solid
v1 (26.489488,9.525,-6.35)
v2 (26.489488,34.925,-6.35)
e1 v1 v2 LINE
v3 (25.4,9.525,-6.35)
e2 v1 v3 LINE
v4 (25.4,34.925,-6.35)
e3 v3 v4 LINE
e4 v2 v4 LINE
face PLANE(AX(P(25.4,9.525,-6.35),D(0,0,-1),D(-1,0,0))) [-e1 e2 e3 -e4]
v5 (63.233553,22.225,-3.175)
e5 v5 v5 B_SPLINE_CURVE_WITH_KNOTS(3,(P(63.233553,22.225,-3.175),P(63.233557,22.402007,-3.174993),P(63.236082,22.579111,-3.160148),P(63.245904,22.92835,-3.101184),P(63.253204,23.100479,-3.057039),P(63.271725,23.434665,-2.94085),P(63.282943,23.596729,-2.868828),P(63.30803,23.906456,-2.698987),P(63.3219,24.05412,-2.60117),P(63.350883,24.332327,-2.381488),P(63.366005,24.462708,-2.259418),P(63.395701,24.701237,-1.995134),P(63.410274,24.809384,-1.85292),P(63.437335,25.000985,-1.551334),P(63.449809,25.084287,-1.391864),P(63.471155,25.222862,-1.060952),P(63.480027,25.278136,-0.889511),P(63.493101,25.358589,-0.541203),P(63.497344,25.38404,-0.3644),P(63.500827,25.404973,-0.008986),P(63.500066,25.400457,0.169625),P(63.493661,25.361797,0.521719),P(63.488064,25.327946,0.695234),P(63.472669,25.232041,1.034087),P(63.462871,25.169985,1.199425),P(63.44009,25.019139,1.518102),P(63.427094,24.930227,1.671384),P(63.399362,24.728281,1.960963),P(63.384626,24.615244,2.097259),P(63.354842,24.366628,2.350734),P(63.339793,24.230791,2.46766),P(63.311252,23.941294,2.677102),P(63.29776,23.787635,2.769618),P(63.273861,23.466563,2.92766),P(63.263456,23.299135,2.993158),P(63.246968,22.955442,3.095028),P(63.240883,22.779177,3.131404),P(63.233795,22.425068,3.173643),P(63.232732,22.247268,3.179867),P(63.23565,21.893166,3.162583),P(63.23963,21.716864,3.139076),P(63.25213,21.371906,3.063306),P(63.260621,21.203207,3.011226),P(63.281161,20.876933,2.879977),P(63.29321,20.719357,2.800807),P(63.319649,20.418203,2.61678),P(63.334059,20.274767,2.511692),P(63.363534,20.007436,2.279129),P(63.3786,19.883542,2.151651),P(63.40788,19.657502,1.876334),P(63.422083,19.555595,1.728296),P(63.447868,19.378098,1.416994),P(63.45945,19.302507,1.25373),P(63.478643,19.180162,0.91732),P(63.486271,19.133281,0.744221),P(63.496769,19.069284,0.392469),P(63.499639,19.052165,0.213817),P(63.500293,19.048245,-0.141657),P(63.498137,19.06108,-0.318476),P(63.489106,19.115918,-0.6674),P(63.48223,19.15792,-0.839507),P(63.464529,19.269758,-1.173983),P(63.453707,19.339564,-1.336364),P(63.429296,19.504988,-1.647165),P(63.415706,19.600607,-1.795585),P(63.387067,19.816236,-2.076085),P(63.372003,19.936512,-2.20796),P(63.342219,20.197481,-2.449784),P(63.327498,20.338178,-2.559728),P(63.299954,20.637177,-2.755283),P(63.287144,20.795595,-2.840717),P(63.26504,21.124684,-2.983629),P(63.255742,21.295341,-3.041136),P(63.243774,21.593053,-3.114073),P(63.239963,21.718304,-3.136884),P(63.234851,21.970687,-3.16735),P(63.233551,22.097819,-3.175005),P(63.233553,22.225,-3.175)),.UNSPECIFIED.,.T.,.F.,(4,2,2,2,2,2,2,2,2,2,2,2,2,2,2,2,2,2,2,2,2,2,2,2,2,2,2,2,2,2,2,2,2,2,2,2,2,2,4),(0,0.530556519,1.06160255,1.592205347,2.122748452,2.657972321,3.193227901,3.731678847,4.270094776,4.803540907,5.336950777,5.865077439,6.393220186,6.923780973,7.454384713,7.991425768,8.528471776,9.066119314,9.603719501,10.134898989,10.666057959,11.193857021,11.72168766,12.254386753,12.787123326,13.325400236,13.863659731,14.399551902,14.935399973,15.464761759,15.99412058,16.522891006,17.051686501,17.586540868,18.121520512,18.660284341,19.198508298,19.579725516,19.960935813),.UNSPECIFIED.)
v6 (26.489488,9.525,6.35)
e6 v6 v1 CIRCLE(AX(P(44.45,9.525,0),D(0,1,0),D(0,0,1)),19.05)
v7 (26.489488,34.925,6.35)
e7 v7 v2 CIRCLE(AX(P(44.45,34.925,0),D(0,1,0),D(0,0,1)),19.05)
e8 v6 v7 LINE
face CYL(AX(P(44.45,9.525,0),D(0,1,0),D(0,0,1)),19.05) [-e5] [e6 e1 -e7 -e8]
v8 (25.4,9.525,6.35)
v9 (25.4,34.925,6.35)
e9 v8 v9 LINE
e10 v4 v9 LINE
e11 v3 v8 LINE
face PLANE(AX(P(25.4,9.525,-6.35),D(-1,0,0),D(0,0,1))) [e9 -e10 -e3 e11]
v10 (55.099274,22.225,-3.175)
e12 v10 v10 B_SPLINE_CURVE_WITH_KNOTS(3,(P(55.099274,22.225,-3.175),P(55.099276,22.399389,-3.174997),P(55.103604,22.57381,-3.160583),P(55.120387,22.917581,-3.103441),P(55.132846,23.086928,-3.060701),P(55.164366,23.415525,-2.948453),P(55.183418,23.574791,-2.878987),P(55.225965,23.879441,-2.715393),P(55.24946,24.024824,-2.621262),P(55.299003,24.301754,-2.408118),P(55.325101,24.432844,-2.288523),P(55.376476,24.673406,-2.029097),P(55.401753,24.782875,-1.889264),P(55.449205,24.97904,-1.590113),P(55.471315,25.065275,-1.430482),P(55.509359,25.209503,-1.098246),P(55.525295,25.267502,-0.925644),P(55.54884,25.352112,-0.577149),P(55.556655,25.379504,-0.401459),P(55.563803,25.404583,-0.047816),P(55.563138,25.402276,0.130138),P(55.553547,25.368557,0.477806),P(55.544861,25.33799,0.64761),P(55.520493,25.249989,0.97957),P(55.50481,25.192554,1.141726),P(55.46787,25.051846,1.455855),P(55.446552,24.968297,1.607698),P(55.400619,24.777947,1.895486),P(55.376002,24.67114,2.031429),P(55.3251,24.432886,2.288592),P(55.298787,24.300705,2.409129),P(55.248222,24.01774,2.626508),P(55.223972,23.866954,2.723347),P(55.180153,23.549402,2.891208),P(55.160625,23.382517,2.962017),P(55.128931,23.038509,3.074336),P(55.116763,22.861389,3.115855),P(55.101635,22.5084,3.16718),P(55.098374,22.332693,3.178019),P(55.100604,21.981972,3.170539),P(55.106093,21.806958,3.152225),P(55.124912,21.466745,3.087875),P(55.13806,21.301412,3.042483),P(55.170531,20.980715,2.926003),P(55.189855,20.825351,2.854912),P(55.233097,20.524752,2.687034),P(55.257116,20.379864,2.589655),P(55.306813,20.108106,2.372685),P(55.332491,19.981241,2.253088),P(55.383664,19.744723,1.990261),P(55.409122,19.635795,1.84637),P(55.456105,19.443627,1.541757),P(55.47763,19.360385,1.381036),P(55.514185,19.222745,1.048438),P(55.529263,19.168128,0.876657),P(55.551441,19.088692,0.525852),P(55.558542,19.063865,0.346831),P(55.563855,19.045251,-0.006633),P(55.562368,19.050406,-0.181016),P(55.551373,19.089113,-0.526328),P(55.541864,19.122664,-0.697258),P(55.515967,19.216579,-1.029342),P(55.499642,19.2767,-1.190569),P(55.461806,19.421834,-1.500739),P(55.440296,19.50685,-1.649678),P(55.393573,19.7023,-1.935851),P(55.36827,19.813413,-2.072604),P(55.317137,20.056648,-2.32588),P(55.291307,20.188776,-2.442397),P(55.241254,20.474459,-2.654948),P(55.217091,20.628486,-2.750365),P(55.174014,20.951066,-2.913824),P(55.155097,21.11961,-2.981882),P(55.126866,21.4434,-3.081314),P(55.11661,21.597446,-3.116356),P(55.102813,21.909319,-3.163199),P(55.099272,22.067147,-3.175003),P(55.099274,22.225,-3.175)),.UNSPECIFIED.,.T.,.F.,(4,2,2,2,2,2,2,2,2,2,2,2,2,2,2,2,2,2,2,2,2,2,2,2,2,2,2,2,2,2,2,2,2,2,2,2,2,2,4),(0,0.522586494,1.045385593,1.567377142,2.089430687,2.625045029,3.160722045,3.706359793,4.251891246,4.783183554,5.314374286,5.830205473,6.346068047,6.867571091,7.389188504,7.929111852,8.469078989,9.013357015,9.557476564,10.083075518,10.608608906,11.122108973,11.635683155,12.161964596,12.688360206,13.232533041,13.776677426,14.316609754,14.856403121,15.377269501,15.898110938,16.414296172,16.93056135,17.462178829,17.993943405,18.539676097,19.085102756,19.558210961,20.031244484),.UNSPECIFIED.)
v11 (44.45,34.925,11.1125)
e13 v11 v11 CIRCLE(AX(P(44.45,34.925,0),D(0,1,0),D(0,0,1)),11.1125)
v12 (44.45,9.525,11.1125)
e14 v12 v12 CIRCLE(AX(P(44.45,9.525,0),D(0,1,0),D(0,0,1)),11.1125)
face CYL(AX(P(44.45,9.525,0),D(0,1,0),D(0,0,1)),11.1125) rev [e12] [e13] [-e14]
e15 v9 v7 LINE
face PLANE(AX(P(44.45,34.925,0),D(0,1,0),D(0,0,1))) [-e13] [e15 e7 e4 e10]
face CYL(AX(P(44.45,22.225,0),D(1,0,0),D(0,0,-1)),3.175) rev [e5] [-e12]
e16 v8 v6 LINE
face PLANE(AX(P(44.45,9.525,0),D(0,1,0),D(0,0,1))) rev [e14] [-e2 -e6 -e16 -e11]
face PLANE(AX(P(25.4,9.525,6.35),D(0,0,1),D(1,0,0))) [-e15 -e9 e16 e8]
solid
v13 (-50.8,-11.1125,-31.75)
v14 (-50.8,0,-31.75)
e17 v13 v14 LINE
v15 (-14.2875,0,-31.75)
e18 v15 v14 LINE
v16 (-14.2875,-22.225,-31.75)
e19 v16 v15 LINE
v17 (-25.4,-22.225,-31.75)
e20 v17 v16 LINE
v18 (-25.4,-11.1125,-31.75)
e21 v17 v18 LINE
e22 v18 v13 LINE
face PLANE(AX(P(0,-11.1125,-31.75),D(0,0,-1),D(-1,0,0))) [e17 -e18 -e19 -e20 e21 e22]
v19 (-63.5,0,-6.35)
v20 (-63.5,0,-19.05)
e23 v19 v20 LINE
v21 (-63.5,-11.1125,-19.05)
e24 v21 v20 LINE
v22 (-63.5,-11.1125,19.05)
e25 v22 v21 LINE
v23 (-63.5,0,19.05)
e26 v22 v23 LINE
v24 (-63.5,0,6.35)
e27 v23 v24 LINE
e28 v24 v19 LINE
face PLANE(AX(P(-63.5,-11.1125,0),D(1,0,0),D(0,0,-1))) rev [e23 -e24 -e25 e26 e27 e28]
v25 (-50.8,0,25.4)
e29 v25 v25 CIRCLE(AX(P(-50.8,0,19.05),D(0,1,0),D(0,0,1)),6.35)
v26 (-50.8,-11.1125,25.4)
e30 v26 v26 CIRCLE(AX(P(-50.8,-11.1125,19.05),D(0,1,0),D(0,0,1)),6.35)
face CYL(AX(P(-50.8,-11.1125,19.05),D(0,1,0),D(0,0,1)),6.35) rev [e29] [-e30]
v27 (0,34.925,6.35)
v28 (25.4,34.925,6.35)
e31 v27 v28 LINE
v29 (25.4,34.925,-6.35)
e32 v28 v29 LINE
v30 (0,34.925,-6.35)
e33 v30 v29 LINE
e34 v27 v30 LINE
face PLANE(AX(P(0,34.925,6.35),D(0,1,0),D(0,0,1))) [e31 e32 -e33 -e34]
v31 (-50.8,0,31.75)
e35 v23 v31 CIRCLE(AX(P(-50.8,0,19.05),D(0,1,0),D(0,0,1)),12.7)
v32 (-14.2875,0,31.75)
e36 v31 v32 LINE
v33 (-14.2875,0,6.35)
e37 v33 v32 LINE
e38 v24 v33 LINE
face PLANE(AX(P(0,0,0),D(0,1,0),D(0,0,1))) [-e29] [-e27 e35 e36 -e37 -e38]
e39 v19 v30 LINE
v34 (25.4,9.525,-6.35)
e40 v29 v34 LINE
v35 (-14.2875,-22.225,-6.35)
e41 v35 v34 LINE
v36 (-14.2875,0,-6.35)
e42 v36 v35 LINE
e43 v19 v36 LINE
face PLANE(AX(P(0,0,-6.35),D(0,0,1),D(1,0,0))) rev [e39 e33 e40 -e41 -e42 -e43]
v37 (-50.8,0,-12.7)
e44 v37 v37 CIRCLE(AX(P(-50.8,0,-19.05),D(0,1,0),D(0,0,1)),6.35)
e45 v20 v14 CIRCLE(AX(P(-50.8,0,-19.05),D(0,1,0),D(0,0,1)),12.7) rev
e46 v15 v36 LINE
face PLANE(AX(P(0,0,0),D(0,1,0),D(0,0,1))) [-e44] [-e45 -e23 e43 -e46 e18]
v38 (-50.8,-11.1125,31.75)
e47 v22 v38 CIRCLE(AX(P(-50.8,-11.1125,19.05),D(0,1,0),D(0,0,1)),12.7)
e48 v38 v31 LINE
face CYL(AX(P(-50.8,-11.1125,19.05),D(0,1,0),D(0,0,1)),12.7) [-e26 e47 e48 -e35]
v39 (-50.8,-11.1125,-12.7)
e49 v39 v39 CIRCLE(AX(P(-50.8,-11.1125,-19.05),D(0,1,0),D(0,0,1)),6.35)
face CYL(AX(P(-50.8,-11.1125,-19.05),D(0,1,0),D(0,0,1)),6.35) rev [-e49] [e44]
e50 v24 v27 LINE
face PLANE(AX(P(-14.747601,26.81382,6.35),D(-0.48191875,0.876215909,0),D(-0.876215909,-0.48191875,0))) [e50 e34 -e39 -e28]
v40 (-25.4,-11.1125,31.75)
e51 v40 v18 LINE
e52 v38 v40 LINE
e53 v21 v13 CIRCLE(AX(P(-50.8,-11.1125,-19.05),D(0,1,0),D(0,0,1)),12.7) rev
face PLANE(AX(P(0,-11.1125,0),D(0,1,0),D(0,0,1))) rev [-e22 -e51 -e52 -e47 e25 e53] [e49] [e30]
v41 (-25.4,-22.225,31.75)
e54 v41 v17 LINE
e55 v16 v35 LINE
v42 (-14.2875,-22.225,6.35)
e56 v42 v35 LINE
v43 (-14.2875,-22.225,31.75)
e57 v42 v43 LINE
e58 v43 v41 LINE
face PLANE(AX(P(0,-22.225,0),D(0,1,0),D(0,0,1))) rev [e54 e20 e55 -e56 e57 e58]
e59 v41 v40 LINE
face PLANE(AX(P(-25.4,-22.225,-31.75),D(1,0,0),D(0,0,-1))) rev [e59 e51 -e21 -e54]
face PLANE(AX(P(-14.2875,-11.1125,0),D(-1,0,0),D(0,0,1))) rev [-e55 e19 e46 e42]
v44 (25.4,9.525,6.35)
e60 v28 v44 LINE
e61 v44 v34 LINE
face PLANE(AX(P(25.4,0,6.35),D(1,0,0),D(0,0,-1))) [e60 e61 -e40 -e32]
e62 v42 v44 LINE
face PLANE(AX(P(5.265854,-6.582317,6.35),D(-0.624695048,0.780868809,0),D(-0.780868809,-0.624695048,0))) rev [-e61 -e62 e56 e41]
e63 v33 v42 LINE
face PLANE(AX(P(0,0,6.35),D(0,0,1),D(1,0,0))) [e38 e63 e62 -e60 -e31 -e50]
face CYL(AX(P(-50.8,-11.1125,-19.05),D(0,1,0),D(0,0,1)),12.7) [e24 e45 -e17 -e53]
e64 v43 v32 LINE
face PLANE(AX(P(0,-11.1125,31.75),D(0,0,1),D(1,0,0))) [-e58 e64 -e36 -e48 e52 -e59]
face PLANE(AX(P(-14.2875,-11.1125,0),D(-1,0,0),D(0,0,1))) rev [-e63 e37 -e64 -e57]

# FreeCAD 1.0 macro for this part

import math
import FreeCAD as App
import Part
import Sketcher
Q = App.Units.Quantity


def add_polygon(sketch, points):
    """Adds a closed chain of lines whose ends are joined by coincident constraints."""
    first, n = sketch.GeometryCount, len(points)
    for a, b in zip(points, points[1:] + points[:1]):
        sketch.addGeometry(Part.LineSegment(App.Vector(*a, 0), App.Vector(*b, 0)), False)
    for i in range(n):
        sketch.addConstraint(Sketcher.Constraint("Coincident", first + i, 2, first + (i + 1) % n, 1))

doc = App.newDocument("Part")
body = doc.addObject("PartDesign::Body", "Body")

sketch1 = doc.addObject("Sketcher::SketchObject", "Sketch")
body.addObject(sketch1)
sketch1.AttachmentSupport = (doc.XZ_Plane, [""])
sketch1.MapMode = "FlatFace"
sketch1.addGeometry(Part.LineSegment(App.Vector(-63.5, -19.05, 0), App.Vector(-63.5, 19.05, 0)), False)
sketch1.addGeometry(Part.ArcOfCircle(Part.Circle(App.Vector(-50.8, 19.05, 0), App.Vector(0, 0, 1), 12.7), math.radians(90), math.radians(180)), False)
sketch1.addGeometry(Part.LineSegment(App.Vector(-50.8, 31.75, 0), App.Vector(-14.2875, 31.75, 0)), False)
sketch1.addGeometry(Part.LineSegment(App.Vector(-14.2875, 31.75, 0), App.Vector(-14.2875, -31.75, 0)), False)
sketch1.addGeometry(Part.LineSegment(App.Vector(-14.2875, -31.75, 0), App.Vector(-50.8, -31.75, 0)), False)
sketch1.addGeometry(Part.ArcOfCircle(Part.Circle(App.Vector(-50.8, -19.05, 0), App.Vector(0, 0, 1), 12.7), math.radians(180), math.radians(270)), False)
sketch1.addGeometry(Part.Circle(App.Vector(-50.8, 19.05, 0), App.Vector(0, 0, 1), 6.35), False)
sketch1.addGeometry(Part.Circle(App.Vector(-50.8, -19.05, 0), App.Vector(0, 0, 1), 6.35), False)
sketch1.addConstraint(Sketcher.Constraint("Tangent", 0, 2, 1, 2))
sketch1.addConstraint(Sketcher.Constraint("Tangent", 1, 1, 2, 1))
sketch1.addConstraint(Sketcher.Constraint("Coincident", 2, 2, 3, 1))
sketch1.addConstraint(Sketcher.Constraint("Coincident", 3, 2, 4, 1))
sketch1.addConstraint(Sketcher.Constraint("Tangent", 4, 2, 5, 2))
sketch1.addConstraint(Sketcher.Constraint("Tangent", 5, 1, 0, 1))
sketch1.addConstraint(Sketcher.Constraint("Vertical", 0))
sketch1.addConstraint(Sketcher.Constraint("Horizontal", 2))
sketch1.addConstraint(Sketcher.Constraint("Vertical", 3))
sketch1.addConstraint(Sketcher.Constraint("Horizontal", 4))
sketch1.addConstraint(Sketcher.Constraint("Coincident", 6, 3, 1, 3))
sketch1.addConstraint(Sketcher.Constraint("Coincident", 7, 3, 5, 3))
sketch1.addConstraint(Sketcher.Constraint("Equal", 1, 5))
sketch1.addConstraint(Sketcher.Constraint("Equal", 6, 7))
sketch1.addConstraint(Sketcher.Constraint("Diameter", 6, Q("0.5 in")))
sketch1.addConstraint(Sketcher.Constraint("Radius", 1, Q("0.5 in")))
sketch1.addConstraint(Sketcher.Constraint("DistanceY", 0, 1, 0, 2, Q("1.5 in")))
sketch1.addConstraint(Sketcher.Constraint("DistanceX", 1, 3, -1, 1, Q("2 in")))
sketch1.addConstraint(Sketcher.Constraint("DistanceX", 2, 1, 2, 2, Q("1.4375 in")))
sketch1.addConstraint(Sketcher.Constraint("DistanceY", -1, 1, 1, 3, Q("0.75 in")))
pad1 = doc.addObject("PartDesign::Pad", "Pad")
body.addObject(pad1)
pad1.Profile = sketch1
pad1.Length = Q("0.4375 in")

sketch2 = doc.addObject("Sketcher::SketchObject", "Sketch001")
body.addObject(sketch2)
sketch2.AttachmentSupport = (doc.XZ_Plane, [""])
sketch2.MapMode = "FlatFace"
sketch2.AttachmentOffset = App.Placement(App.Vector(0, 0, 0.4375 * 25.4), App.Rotation())
add_polygon(sketch2, [(-25.4, 31.75), (-25.4, -31.75), (-14.2875, -31.75), (-14.2875, 31.75)])
sketch2.addConstraint(Sketcher.Constraint("Vertical", 0))
sketch2.addConstraint(Sketcher.Constraint("Horizontal", 1))
sketch2.addConstraint(Sketcher.Constraint("Vertical", 2))
sketch2.addConstraint(Sketcher.Constraint("Horizontal", 3))
sketch2.addConstraint(Sketcher.Constraint("DistanceY", 0, 2, 0, 1, Q("2.5 in")))
sketch2.addConstraint(Sketcher.Constraint("DistanceX", 0, 2, -1, 1, Q("1 in")))
sketch2.addConstraint(Sketcher.Constraint("DistanceX", 1, 1, 1, 2, Q("0.4375 in")))
sketch2.addConstraint(Sketcher.Constraint("DistanceY", 0, 2, -1, 1, Q("1.25 in")))
pad2 = doc.addObject("PartDesign::Pad", "Pad001")
body.addObject(pad2)
pad2.Profile = sketch2
pad2.Length = Q("0.4375 in")

sketch3 = doc.addObject("Sketcher::SketchObject", "Sketch002")
body.addObject(sketch3)
sketch3.AttachmentSupport = (doc.XY_Plane, [""])
sketch3.MapMode = "FlatFace"
add_polygon(sketch3, [(-63.5, 0), (-14.2875, 0), (-14.2875, -22.225), (25.4, 9.525), (25.4, 34.925), (0, 34.925)])
sketch3.addConstraint(Sketcher.Constraint("Horizontal", 0))
sketch3.addConstraint(Sketcher.Constraint("Vertical", 1))
sketch3.addConstraint(Sketcher.Constraint("Vertical", 3))
sketch3.addConstraint(Sketcher.Constraint("Horizontal", 4))
sketch3.addConstraint(Sketcher.Constraint("PointOnObject", 0, 2, -1))
sketch3.addConstraint(Sketcher.Constraint("PointOnObject", 4, 2, -2))
sketch3.addConstraint(Sketcher.Constraint("Equal", 4, 3))
sketch3.addConstraint(Sketcher.Constraint("DistanceX", 4, 2, 4, 1, Q("1 in")))
sketch3.addConstraint(Sketcher.Constraint("DistanceX", 5, 2, -1, 1, Q("2.5 in")))
sketch3.addConstraint(Sketcher.Constraint("DistanceX", 0, 1, 0, 2, Q("1.9375 in")))
sketch3.addConstraint(Sketcher.Constraint("DistanceY", 1, 2, 1, 1, Q("0.875 in")))
sketch3.addConstraint(Sketcher.Constraint("DistanceY", 1, 2, 2, 2, Q("1.25 in")))
pad3 = doc.addObject("PartDesign::Pad", "Pad002")
body.addObject(pad3)
pad3.Profile = sketch3
pad3.Length = Q("0.5 in")
pad3.Midplane = True
body2 = doc.addObject("PartDesign::Body", "Body001")

sketch4 = doc.addObject("Sketcher::SketchObject", "Sketch003")
body2.addObject(sketch4)
sketch4.AttachmentSupport = (doc.getObject("XZ_Plane001"), [""])
sketch4.MapMode = "FlatFace"
sketch4.AttachmentOffset = App.Placement(App.Vector(0, 0, -1.375 * 25.4), App.Rotation())
sketch4.addGeometry(Part.LineSegment(App.Vector(26.489488, -6.35, 0), App.Vector(25.4, -6.35, 0)), False)
sketch4.addGeometry(Part.LineSegment(App.Vector(25.4, -6.35, 0), App.Vector(25.4, 6.35, 0)), False)
sketch4.addGeometry(Part.LineSegment(App.Vector(25.4, 6.35, 0), App.Vector(26.489488, 6.35, 0)), False)
sketch4.addGeometry(Part.ArcOfCircle(Part.Circle(App.Vector(44.45, 0, 0), App.Vector(0, 0, 1), 19.05), math.radians(-160.528779), math.radians(160.528779)), False)
sketch4.addGeometry(Part.Circle(App.Vector(44.45, 0, 0), App.Vector(0, 0, 1), 11.1125), False)
sketch4.addConstraint(Sketcher.Constraint("Coincident", 0, 2, 1, 1))
sketch4.addConstraint(Sketcher.Constraint("Coincident", 1, 2, 2, 1))
sketch4.addConstraint(Sketcher.Constraint("Coincident", 2, 2, 3, 2))
sketch4.addConstraint(Sketcher.Constraint("Coincident", 3, 1, 0, 1))
sketch4.addConstraint(Sketcher.Constraint("Horizontal", 0))
sketch4.addConstraint(Sketcher.Constraint("Vertical", 1))
sketch4.addConstraint(Sketcher.Constraint("Horizontal", 2))
sketch4.addConstraint(Sketcher.Constraint("Coincident", 4, 3, 3, 3))
sketch4.addConstraint(Sketcher.Constraint("Symmetric", 2, 2, 3, 1, -1))
sketch4.addConstraint(Sketcher.Constraint("Radius", 3, Q("0.75 in")))
sketch4.addConstraint(Sketcher.Constraint("Diameter", 4, Q("0.875 in")))
sketch4.addConstraint(Sketcher.Constraint("DistanceY", 1, 1, 1, 2, Q("0.5 in")))
sketch4.addConstraint(Sketcher.Constraint("DistanceX", -1, 1, 0, 2, Q("1 in")))
sketch4.addConstraint(Sketcher.Constraint("DistanceX", -1, 1, 3, 3, Q("1.75 in")))
pad4 = doc.addObject("PartDesign::Pad", "Pad003")
body2.addObject(pad4)
pad4.Profile = sketch4
pad4.Length = Q("1 in")

sketch5 = doc.addObject("Sketcher::SketchObject", "Sketch004")
body2.addObject(sketch5)
sketch5.AttachmentSupport = (doc.getObject("YZ_Plane001"), [""])
sketch5.MapMode = "FlatFace"
sketch5.AttachmentOffset = App.Placement(App.Vector(0, 0, 2.5 * 25.4), App.Rotation())
sketch5.addGeometry(Part.Circle(App.Vector(22.225, 0, 0), App.Vector(0, 0, 1), 3.175), False)
sketch5.addConstraint(Sketcher.Constraint("PointOnObject", 0, 3, -1))
sketch5.addConstraint(Sketcher.Constraint("Diameter", 0, Q("0.25 in")))
sketch5.addConstraint(Sketcher.Constraint("DistanceX", -1, 1, 0, 3, Q("0.875 in")))
pocket1 = doc.addObject("PartDesign::Pocket", "Pocket")
body2.addObject(pocket1)
pocket1.Profile = sketch5
pocket1.Length = Q("0.75 in")

doc.recompute()
